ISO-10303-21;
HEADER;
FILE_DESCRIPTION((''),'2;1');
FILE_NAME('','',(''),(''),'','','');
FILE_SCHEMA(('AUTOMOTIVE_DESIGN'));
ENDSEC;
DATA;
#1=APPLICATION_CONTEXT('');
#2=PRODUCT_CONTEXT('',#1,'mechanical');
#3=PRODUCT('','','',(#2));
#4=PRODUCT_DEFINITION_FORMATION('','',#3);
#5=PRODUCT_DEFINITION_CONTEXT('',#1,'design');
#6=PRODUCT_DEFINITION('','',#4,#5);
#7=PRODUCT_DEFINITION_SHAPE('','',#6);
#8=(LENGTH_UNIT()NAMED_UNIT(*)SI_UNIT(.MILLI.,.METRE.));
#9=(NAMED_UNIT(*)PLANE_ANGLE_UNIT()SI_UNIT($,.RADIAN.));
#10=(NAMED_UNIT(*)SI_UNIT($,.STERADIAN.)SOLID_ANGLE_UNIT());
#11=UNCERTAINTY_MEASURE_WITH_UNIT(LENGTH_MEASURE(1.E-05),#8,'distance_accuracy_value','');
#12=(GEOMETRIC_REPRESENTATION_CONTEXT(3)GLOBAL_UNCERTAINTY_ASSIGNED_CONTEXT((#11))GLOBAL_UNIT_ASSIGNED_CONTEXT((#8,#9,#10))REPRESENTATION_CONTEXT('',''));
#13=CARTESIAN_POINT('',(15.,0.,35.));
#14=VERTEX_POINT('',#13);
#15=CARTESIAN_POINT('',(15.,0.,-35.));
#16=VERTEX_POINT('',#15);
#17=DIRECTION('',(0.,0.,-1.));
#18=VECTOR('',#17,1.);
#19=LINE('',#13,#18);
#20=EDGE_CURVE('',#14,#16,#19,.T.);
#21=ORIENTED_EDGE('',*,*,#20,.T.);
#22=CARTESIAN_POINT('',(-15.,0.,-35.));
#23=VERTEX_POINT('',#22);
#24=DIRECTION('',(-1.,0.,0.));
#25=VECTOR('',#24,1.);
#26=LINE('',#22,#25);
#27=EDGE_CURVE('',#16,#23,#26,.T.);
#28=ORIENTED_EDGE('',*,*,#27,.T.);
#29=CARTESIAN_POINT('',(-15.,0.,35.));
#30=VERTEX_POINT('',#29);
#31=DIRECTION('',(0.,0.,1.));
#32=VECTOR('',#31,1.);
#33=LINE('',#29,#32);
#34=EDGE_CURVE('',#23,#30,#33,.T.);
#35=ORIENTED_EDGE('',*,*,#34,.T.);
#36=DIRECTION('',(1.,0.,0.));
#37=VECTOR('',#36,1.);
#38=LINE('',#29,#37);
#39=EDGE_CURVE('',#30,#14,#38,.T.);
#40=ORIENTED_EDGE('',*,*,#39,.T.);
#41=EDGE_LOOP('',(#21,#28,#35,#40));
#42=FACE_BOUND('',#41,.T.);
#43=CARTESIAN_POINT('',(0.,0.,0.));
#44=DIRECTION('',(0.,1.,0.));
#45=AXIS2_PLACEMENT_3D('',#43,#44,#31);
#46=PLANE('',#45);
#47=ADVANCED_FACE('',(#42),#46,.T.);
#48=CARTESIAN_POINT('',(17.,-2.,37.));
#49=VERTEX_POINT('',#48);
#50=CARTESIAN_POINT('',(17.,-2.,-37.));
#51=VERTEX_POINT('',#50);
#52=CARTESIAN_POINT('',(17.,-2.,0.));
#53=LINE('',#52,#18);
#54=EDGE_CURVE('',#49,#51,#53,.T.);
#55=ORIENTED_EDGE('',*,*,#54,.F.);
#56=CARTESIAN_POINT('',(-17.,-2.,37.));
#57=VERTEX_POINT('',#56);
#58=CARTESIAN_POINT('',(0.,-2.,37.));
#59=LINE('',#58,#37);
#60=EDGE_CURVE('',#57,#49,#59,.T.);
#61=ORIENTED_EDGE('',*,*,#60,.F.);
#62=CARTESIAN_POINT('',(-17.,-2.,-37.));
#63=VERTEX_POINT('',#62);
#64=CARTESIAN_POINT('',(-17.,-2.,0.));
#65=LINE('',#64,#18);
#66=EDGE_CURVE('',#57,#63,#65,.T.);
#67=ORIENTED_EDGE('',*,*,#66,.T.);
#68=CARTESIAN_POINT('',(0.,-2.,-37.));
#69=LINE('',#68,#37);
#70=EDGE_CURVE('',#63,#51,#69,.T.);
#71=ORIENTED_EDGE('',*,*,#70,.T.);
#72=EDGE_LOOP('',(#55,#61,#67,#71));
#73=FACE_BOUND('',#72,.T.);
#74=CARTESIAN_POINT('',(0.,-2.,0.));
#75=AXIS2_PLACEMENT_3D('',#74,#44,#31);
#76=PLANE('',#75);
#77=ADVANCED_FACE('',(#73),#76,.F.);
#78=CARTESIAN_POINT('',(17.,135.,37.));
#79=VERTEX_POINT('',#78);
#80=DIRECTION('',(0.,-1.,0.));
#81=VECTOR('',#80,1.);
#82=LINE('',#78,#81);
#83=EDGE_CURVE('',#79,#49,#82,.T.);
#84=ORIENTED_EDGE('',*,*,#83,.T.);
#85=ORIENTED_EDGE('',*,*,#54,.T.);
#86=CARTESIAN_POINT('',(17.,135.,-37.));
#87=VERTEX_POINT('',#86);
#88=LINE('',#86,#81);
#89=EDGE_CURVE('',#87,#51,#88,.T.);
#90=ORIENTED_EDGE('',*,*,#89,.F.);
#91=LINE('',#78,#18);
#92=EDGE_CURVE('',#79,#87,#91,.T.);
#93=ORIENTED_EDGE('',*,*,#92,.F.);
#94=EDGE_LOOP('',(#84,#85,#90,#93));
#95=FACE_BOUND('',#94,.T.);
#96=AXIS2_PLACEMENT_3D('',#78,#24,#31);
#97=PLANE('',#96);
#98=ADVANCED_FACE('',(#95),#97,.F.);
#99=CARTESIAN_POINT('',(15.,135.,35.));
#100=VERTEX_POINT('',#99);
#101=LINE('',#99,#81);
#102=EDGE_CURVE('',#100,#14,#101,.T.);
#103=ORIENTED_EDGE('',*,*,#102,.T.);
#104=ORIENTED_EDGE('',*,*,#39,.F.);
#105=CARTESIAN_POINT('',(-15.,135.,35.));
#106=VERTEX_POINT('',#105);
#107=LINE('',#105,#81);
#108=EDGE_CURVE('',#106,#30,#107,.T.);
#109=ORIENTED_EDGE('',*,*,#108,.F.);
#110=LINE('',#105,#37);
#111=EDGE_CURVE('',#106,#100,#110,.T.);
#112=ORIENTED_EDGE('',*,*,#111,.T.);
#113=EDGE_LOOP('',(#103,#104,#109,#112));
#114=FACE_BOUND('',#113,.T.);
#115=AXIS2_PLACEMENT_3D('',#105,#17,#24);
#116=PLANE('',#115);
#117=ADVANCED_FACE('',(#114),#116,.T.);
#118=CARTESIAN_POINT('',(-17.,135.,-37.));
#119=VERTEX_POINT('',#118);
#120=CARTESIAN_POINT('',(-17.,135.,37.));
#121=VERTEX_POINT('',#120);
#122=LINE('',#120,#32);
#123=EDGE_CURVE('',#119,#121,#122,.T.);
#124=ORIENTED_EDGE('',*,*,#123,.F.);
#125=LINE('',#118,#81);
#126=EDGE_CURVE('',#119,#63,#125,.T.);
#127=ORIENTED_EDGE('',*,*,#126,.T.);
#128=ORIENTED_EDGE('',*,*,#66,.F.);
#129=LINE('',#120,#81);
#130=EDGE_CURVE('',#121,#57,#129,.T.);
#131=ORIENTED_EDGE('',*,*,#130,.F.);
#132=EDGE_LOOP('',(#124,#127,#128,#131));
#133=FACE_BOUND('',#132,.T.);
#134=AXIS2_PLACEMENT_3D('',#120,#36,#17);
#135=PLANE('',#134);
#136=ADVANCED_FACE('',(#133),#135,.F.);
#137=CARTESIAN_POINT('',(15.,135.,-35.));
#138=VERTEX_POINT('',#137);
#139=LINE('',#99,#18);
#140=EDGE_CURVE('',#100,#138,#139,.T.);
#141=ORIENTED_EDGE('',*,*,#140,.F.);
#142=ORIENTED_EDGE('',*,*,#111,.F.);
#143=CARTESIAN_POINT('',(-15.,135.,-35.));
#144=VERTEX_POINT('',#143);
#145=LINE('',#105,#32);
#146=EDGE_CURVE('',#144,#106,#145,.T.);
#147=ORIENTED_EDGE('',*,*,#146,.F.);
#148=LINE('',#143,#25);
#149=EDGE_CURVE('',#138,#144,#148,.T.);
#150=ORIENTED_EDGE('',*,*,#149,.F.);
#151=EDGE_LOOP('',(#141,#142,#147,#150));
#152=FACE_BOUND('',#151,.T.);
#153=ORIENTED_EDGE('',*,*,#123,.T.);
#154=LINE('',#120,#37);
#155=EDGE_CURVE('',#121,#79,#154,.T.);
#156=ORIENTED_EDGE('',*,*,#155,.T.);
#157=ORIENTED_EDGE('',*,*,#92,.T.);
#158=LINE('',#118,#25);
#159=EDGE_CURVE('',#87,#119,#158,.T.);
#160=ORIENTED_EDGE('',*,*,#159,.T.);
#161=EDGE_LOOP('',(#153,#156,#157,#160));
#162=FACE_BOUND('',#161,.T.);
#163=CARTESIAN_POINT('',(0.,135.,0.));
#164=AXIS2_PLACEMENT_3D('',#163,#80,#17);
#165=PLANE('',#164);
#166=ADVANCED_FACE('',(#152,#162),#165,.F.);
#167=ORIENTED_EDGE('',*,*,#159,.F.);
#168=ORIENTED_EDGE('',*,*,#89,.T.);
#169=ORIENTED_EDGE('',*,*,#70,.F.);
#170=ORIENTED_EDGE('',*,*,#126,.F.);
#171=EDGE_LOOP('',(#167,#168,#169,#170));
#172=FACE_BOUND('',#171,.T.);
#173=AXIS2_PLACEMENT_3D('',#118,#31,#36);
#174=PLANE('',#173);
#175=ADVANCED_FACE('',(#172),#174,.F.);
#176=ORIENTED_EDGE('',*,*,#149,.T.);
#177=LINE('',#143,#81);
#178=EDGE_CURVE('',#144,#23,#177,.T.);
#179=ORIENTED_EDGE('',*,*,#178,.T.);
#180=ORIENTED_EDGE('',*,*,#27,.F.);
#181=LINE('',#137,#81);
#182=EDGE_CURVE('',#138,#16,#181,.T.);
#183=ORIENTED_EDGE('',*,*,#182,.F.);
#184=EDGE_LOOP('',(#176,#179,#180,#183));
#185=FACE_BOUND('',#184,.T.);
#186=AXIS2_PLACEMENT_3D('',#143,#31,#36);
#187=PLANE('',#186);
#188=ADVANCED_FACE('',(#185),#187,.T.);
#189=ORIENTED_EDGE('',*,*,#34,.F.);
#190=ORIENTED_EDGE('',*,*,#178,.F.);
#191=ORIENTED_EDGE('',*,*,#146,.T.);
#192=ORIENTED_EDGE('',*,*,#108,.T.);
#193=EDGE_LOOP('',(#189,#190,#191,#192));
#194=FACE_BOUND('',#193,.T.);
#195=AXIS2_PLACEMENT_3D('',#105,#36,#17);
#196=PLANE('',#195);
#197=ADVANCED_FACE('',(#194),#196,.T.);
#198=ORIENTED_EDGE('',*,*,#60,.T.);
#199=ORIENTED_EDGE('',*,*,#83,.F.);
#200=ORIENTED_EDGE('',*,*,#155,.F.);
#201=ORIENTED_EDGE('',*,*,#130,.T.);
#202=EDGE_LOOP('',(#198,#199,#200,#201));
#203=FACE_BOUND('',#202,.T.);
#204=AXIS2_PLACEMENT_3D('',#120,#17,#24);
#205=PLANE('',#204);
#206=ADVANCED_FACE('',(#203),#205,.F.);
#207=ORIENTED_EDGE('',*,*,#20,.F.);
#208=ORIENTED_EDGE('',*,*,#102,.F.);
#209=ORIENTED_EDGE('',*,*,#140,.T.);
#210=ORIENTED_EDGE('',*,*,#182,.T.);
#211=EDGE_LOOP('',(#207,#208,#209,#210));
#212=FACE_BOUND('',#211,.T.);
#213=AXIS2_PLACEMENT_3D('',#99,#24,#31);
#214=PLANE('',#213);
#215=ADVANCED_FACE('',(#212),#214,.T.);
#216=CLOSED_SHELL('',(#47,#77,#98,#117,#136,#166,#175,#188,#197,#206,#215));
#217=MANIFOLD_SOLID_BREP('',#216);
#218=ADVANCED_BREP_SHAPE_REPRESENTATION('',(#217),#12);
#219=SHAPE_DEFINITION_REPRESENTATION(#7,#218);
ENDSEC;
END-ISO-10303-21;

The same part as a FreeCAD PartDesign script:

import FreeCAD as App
import Part
import Sketcher
from FreeCAD import Vector


def add_polygon(sketch, points):
    """Adds a closed chain of lines whose ends are joined by coincident constraints."""
    first, n = sketch.GeometryCount, len(points)
    for a, b in zip(points, points[1:] + points[:1]):
        sketch.addGeometry(Part.LineSegment(App.Vector(*a, 0), App.Vector(*b, 0)), False)
    for i in range(n):
        sketch.addConstraint(Sketcher.Constraint("Coincident", first + i, 2, first + (i + 1) % n, 1))

doc = App.newDocument("Part")
body = doc.addObject("PartDesign::Body", "Body")

# Sketch on XZ plane
sketch1 = body.newObject("Sketcher::SketchObject", "Sketch")
sketch1.AttachmentSupport = (doc.getObject("XZ_Plane"), [""])
sketch1.MapMode = "FlatFace"
add_polygon(sketch1, [(-17, -37), (-17, 37), (17, 37), (17, -37)])  # lines 0-3
add_polygon(sketch1, [(15, 35), (-15, 35), (-15, -35), (15, -35)])  # lines 4-7
sketch1.addConstraint(Sketcher.Constraint("Vertical", 0))
sketch1.addConstraint(Sketcher.Constraint("Horizontal", 1))
sketch1.addConstraint(Sketcher.Constraint("Vertical", 2))
sketch1.addConstraint(Sketcher.Constraint("Horizontal", 3))
sketch1.addConstraint(Sketcher.Constraint("Horizontal", 4))
sketch1.addConstraint(Sketcher.Constraint("Vertical", 5))
sketch1.addConstraint(Sketcher.Constraint("Horizontal", 6))
sketch1.addConstraint(Sketcher.Constraint("Vertical", 7))
sketch1.addConstraint(Sketcher.Constraint("Symmetric", 0, 2, 2, 2, -1, 1))
sketch1.addConstraint(Sketcher.Constraint("Symmetric", 4, 2, 6, 2, -1, 1))
sketch1.addConstraint(Sketcher.Constraint("DistanceX", 1, 1, 1, 2, 34.0))
sketch1.addConstraint(Sketcher.Constraint("DistanceX", 4, 2, 4, 1, 30.0))
sketch1.addConstraint(Sketcher.Constraint("DistanceY", 0, 1, 0, 2, 74.0))
sketch1.addConstraint(Sketcher.Constraint("DistanceY", 5, 2, 5, 1, 70.0))
pad1 = body.newObject("PartDesign::Pad", "Pad")
pad1.Profile = sketch1
pad1.Length = 135
pad1.Reversed = True

# Sketch on XZ plane
sketch2 = body.newObject("Sketcher::SketchObject", "Sketch001")
sketch2.AttachmentSupport = (doc.getObject("XZ_Plane"), [""])
sketch2.MapMode = "FlatFace"
add_polygon(sketch2, [(-17, -37), (-17, 37), (17, 37), (17, -37)])  # lines 0-3
sketch2.addConstraint(Sketcher.Constraint("Vertical", 0))
sketch2.addConstraint(Sketcher.Constraint("Horizontal", 1))
sketch2.addConstraint(Sketcher.Constraint("Vertical", 2))
sketch2.addConstraint(Sketcher.Constraint("Horizontal", 3))
sketch2.addConstraint(Sketcher.Constraint("Symmetric", 0, 2, 2, 2, -1, 1))
sketch2.addConstraint(Sketcher.Constraint("DistanceX", 1, 1, 1, 2, 34.0))
sketch2.addConstraint(Sketcher.Constraint("DistanceY", 0, 1, 0, 2, 74.0))
pad2 = body.newObject("PartDesign::Pad", "Pad001")
pad2.Profile = sketch2
pad2.Length = 2

doc.recompute()
